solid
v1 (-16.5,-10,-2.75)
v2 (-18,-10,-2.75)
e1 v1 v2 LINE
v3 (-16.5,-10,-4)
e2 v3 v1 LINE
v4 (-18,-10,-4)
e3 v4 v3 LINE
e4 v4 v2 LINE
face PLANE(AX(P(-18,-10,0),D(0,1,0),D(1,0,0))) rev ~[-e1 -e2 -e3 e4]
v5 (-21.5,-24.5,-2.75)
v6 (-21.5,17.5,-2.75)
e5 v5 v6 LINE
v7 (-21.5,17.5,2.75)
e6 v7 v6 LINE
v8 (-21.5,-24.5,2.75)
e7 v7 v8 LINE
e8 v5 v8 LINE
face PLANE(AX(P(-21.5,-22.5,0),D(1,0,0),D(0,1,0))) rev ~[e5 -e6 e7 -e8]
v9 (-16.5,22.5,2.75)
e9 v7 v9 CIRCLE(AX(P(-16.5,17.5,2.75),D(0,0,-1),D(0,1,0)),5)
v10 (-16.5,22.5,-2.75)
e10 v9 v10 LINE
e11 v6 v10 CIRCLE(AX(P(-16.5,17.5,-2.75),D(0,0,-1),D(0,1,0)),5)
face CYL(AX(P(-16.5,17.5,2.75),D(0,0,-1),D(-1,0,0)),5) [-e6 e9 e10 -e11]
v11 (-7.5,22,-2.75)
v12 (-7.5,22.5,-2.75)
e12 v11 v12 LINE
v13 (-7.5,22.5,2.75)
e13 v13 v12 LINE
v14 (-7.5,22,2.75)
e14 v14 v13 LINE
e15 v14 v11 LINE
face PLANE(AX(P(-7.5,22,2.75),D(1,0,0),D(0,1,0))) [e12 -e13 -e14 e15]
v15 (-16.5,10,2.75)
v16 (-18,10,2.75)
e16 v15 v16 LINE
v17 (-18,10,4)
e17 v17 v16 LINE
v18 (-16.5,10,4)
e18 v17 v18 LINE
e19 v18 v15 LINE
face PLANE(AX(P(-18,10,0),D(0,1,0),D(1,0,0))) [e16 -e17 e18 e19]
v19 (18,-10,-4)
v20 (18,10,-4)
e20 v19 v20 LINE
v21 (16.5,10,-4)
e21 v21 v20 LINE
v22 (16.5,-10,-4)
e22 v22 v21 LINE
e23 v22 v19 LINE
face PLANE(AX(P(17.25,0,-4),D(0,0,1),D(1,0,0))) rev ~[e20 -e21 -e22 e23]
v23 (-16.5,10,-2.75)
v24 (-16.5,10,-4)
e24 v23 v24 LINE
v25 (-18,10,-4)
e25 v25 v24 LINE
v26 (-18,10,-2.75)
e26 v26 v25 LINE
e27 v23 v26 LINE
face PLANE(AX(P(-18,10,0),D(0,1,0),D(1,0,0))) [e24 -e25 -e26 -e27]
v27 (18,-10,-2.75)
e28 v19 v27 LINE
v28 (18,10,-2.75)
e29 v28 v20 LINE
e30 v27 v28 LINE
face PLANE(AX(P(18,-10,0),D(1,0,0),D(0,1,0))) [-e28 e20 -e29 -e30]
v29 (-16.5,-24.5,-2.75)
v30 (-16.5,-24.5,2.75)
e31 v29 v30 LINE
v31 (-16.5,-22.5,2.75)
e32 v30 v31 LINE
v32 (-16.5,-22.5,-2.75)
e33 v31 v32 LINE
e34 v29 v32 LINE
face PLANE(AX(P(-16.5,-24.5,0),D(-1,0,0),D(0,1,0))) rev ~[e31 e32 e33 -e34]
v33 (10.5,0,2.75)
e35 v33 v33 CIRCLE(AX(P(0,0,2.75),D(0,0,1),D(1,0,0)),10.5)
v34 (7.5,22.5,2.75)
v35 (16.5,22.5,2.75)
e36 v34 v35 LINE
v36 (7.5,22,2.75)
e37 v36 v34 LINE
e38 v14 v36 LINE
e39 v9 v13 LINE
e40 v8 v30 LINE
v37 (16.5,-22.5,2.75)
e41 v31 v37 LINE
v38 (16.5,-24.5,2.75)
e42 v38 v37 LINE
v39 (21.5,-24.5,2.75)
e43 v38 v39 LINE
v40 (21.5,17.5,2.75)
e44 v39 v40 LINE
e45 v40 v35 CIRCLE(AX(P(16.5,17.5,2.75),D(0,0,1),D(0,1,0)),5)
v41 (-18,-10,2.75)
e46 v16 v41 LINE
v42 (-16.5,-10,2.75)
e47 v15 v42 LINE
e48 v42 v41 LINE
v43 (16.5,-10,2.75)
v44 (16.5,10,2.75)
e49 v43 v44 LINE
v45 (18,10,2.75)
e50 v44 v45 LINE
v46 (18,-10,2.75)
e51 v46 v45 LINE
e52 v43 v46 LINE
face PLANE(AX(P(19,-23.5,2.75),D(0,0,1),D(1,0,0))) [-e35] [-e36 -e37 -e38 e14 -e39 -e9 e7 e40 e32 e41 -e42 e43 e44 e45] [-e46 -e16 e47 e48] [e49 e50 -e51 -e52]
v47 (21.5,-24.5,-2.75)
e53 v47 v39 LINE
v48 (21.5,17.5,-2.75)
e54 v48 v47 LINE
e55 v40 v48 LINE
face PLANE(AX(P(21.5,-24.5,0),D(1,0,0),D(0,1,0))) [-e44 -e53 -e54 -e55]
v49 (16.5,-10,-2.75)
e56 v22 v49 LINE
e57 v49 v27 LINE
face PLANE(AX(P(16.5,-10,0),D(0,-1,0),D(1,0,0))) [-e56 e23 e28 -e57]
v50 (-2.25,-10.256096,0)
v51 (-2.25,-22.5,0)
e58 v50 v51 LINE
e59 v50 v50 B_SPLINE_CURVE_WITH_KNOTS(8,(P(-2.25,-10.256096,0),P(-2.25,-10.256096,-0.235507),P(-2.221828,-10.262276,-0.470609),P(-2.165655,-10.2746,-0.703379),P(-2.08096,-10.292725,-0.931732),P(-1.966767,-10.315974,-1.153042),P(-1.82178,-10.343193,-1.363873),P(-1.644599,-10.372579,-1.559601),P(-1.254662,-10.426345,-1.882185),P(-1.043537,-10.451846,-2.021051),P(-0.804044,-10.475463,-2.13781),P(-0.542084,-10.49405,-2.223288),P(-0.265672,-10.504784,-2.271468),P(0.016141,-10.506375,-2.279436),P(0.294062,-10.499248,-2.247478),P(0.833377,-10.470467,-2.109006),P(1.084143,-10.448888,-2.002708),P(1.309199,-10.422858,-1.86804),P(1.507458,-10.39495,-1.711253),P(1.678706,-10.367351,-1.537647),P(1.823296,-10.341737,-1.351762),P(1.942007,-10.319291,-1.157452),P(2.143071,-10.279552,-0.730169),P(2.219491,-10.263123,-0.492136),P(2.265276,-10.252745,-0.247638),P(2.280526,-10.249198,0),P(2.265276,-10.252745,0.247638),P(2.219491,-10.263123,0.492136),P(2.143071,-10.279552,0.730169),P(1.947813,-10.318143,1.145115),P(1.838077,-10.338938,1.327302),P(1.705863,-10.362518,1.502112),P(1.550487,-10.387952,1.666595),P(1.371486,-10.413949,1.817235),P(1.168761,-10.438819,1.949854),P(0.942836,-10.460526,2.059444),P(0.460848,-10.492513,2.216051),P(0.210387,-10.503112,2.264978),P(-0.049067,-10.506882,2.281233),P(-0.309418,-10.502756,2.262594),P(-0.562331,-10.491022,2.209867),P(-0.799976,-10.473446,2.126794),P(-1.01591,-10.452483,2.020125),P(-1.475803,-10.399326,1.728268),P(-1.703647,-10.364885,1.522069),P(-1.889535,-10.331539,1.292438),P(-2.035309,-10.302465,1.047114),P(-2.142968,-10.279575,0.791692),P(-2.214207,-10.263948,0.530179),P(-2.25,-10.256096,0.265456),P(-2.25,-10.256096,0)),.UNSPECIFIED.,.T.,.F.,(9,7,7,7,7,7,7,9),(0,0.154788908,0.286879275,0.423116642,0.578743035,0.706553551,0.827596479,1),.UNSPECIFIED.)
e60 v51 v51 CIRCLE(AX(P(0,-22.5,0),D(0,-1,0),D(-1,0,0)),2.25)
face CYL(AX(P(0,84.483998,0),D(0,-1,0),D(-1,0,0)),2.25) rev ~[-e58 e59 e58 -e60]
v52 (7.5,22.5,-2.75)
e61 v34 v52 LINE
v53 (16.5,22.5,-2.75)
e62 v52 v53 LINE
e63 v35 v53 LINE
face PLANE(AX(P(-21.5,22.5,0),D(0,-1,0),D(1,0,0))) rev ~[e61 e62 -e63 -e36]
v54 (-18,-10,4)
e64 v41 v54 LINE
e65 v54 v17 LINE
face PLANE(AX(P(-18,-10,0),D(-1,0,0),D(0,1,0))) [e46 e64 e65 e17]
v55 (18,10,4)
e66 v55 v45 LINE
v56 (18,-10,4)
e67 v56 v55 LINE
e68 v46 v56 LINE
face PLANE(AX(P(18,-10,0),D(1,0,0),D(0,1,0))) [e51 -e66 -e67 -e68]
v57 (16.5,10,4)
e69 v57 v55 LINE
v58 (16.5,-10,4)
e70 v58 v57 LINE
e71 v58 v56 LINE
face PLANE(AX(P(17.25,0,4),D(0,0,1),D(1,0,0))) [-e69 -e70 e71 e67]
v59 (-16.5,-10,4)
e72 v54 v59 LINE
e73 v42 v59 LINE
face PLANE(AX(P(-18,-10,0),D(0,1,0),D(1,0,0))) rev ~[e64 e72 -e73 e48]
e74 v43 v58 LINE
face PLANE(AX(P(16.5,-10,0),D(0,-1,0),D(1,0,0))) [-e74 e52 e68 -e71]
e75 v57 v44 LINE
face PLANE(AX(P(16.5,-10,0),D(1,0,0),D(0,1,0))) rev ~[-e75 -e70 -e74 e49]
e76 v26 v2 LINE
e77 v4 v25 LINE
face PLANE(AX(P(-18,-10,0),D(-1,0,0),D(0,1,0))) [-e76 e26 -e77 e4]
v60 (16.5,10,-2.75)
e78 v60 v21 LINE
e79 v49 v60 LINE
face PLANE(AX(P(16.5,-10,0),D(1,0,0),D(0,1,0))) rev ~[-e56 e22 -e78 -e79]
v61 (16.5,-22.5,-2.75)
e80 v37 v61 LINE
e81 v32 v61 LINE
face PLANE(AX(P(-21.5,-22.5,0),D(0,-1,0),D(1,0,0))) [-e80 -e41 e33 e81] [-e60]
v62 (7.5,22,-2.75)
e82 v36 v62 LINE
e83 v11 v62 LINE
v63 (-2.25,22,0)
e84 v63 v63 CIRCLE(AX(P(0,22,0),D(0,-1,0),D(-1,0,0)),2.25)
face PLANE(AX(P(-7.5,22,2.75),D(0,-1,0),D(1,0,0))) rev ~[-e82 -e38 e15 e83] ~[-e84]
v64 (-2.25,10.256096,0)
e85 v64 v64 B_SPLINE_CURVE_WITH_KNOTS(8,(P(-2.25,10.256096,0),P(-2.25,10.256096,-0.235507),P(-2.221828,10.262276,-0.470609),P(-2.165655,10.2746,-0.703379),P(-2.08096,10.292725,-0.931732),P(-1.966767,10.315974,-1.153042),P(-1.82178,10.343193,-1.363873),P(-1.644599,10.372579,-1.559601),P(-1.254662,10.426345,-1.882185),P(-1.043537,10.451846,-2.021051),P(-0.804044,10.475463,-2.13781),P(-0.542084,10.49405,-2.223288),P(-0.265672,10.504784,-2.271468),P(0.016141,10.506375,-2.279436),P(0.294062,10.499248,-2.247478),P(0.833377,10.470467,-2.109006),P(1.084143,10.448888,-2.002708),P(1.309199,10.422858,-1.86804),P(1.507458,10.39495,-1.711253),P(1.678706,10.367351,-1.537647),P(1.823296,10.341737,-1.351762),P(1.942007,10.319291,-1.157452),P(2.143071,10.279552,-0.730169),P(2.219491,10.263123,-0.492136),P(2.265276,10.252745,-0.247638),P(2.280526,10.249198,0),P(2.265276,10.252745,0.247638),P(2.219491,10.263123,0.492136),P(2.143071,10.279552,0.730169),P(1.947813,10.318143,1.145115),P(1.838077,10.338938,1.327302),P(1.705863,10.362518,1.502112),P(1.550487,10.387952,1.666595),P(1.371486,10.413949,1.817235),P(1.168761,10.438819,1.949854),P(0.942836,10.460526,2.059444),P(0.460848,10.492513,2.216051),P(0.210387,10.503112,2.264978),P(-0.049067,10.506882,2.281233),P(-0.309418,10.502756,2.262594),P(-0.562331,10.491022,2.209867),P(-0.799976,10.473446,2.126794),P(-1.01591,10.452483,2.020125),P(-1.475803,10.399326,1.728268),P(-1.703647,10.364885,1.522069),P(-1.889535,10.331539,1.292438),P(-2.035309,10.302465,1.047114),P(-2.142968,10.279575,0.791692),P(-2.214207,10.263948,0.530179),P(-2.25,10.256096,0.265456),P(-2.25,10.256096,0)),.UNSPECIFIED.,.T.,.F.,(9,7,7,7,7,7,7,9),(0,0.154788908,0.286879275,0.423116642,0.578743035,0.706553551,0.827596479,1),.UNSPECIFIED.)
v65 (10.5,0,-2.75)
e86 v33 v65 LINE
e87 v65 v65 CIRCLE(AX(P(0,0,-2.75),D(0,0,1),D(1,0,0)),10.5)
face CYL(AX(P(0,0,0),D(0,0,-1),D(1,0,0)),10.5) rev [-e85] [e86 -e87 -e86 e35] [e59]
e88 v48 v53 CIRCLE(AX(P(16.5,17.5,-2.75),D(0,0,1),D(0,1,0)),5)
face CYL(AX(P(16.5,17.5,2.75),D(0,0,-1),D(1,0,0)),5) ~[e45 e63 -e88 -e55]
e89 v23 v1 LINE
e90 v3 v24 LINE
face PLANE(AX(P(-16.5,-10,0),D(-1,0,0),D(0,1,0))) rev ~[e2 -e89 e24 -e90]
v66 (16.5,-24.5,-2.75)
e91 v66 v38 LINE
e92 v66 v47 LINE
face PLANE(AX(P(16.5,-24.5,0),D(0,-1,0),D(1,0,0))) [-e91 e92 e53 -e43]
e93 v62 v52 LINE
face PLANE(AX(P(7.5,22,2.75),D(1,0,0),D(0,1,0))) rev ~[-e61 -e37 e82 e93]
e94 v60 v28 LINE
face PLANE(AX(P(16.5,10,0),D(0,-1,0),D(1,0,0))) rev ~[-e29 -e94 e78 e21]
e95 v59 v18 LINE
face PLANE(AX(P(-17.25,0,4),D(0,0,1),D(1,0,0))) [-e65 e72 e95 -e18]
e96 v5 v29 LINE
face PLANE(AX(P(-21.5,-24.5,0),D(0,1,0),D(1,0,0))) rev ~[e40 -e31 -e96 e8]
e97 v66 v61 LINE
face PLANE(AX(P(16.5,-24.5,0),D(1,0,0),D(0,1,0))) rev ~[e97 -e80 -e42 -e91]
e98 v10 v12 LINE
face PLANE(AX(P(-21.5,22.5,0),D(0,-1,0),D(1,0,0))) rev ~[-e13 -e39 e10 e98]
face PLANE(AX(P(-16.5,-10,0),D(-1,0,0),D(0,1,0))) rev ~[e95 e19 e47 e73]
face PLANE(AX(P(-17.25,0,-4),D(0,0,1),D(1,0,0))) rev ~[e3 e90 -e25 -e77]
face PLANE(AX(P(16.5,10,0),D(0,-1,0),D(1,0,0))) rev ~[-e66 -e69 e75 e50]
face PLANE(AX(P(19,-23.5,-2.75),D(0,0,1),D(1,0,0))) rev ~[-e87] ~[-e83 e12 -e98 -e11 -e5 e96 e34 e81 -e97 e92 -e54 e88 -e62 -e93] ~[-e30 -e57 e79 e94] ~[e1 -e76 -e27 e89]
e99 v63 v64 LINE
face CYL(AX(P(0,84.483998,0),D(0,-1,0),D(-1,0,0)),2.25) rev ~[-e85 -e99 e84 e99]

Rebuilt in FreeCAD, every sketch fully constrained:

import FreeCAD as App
import Part
import Sketcher

V = App.Vector
Q = App.Units.Quantity


def edges_at(feature, points):
    """Names of the edges that pass closest to the given points."""
    edges = feature.Shape.Edges
    near = lambda p: min(range(len(edges)), key=lambda i: edges[i].distToShape(Part.Vertex(*p))[0])
    return sorted({f"Edge{near(p) + 1}" for p in points})


def add_polygon(sketch, points):
    """Adds a closed chain of lines whose ends are joined by coincident constraints."""
    first, n = sketch.GeometryCount, len(points)
    for a, b in zip(points, points[1:] + points[:1]):
        sketch.addGeometry(Part.LineSegment(App.Vector(*a, 0), App.Vector(*b, 0)), False)
    for i in range(n):
        sketch.addConstraint(Sketcher.Constraint("Coincident", first + i, 2, first + (i + 1) % n, 1))

doc = App.newDocument("Part")
body = doc.addObject("PartDesign::Body", "Body")

# Sketch on XY plane
sketch1 = body.newObject("Sketcher::SketchObject", "Sketch")
sketch1.AttachmentSupport = (doc.getObject("XY_Plane"), [""])
sketch1.MapMode = "FlatFace"
add_polygon(sketch1, [(-22, 22), (-22, -22), (22, -22), (22, 22)])  # lines 0-3
sketch1.addGeometry(Part.Circle(V(0, 0, 0), V(0, 0, 1), 10), False)  # 4
sketch1.addConstraint([
    Sketcher.Constraint("Vertical", 0),
    Sketcher.Constraint("Horizontal", 1),
    Sketcher.Constraint("Vertical", 2),
    Sketcher.Constraint("Horizontal", 3),
    Sketcher.Constraint("Coincident", 4, 3, -1, 1),
    Sketcher.Constraint("Symmetric", 0, 2, 2, 2, -1, 1),
    Sketcher.Constraint("Diameter", 4, Q("21 mm")),
    Sketcher.Constraint("DistanceX", 1, 1, 1, 2, Q("43 mm")),
    Sketcher.Constraint("DistanceY", 0, 2, 0, 1, Q("45 mm")),
])
pad1 = body.newObject("PartDesign::Pad", "Pad")
pad1.Profile = sketch1
pad1.Length = 5.5
pad1.Midplane = True
doc.recompute()

fillet = body.newObject("PartDesign::Fillet", "Fillet")
fillet.Base = (pad1, edges_at(pad1, [(-21.5, 22.5, 0), (21.5, 22.5, 0)]))
fillet.Radius = 5

# Sketch on XY plane
sketch2 = body.newObject("Sketcher::SketchObject", "Sketch001")
sketch2.AttachmentSupport = (doc.getObject("XY_Plane"), [""])
sketch2.MapMode = "FlatFace"
sketch2.AttachmentOffset = App.Placement(V(0, 0, 2.75), App.Rotation())
add_polygon(sketch2, [(-7.5, 22.5), (-7.5, 22), (7.5, 22), (7.5, 22.5)])  # lines 0-3
sketch2.addConstraint([
    Sketcher.Constraint("Vertical", 0),
    Sketcher.Constraint("Horizontal", 1),
    Sketcher.Constraint("Vertical", 2),
    Sketcher.Constraint("Horizontal", 3),
    Sketcher.Constraint("DistanceX", 1, 1, 1, 2, Q("15 mm")),
    Sketcher.Constraint("DistanceY", 0, 2, 0, 1, Q("0.5 mm")),
    Sketcher.Constraint("DistanceY", -1, 1, 0, 2, Q("22 mm")),
    Sketcher.Constraint("DistanceX", 0, 2, -1, 1, Q("7.5 mm")),
])
pocket1 = body.newObject("PartDesign::Pocket", "Pocket")
pocket1.Profile = sketch2
pocket1.Length = 10

# Sketch on XZ plane
sketch3 = body.newObject("Sketcher::SketchObject", "Sketch002")
sketch3.AttachmentSupport = (doc.getObject("XZ_Plane"), [""])
sketch3.MapMode = "FlatFace"
sketch3.AttachmentOffset = App.Placement(V(0, 0, -22), App.Rotation())
sketch3.addGeometry(Part.Circle(V(0, 0, 0), V(0, 0, 1), 2.2), False)
sketch3.addConstraint([
    Sketcher.Constraint("Coincident", 0, 3, -1, 1),
    Sketcher.Constraint("Diameter", 0, Q("4.5 mm")),
])
doc.recompute()
hole = body.newObject("PartDesign::Hole", "Hole")
hole.Profile = sketch3
hole.ThreadType = "None"
hole.Diameter = 4.5
hole.DepthType = "ThroughAll"
hole.Reversed = True

# Sketch on XY plane
sketch4 = body.newObject("Sketcher::SketchObject", "Sketch003")
sketch4.AttachmentSupport = (doc.getObject("XY_Plane"), [""])
sketch4.MapMode = "FlatFace"
add_polygon(sketch4, [(-18, 10), (-18, -10), (-16.5, -10), (-16.5, 10)])  # lines 0-3
add_polygon(sketch4, [(16.5, 10), (16.5, -10), (18, -10), (18, 10)])  # lines 4-7
sketch4.addConstraint([
    Sketcher.Constraint("Vertical", 0),
    Sketcher.Constraint("Horizontal", 1),
    Sketcher.Constraint("Vertical", 2),
    Sketcher.Constraint("Horizontal", 3),
    Sketcher.Constraint("Vertical", 4),
    Sketcher.Constraint("Horizontal", 5),
    Sketcher.Constraint("Vertical", 6),
    Sketcher.Constraint("Horizontal", 7),
    Sketcher.Constraint("Symmetric", 2, 2, 4, 2, -1, 1),
    Sketcher.Constraint("Symmetric", 0, 2, 6, 2, -1, 1),
    Sketcher.Constraint("Horizontal", 1, 2, 4, 2),
    Sketcher.Constraint("DistanceY", 0, 2, 0, 1, Q("20 mm")),
    Sketcher.Constraint("DistanceX", 1, 1, 1, 2, Q("1.5 mm")),
    Sketcher.Constraint("DistanceX", 0, 2, -1, 1, Q("18 mm")),
])
pad2 = body.newObject("PartDesign::Pad", "Pad001")
pad2.Profile = sketch4
pad2.Length = 8
pad2.Midplane = True

# Sketch on XY plane
sketch5 = body.newObject("Sketcher::SketchObject", "Sketch004")
sketch5.AttachmentSupport = (doc.getObject("XY_Plane"), [""])
sketch5.MapMode = "FlatFace"
add_polygon(sketch5, [(-21.5, -22.5), (-21.5, -24.5), (-16.5, -24.5), (-16.5, -22.5)])  # lines 0-3
add_polygon(sketch5, [(16.5, -22.5), (16.5, -24.5), (21.5, -24.5), (21.5, -22.5)])  # lines 4-7
sketch5.addConstraint([
    Sketcher.Constraint("Vertical", 0),
    Sketcher.Constraint("Horizontal", 1),
    Sketcher.Constraint("Vertical", 2),
    Sketcher.Constraint("Horizontal", 3),
    Sketcher.Constraint("Vertical", 4),
    Sketcher.Constraint("Horizontal", 5),
    Sketcher.Constraint("Vertical", 6),
    Sketcher.Constraint("Horizontal", 7),
    Sketcher.Constraint("Symmetric", 1, 2, 4, 2, -2),
    Sketcher.Constraint("Symmetric", 3, 2, 6, 2, -2),
    Sketcher.Constraint("DistanceX", 1, 1, 1, 2, Q("5 mm")),
    Sketcher.Constraint("DistanceY", 0, 2, 0, 1, Q("2 mm")),
    Sketcher.Constraint("DistanceX", 1, 2, 4, 2, Q("33 mm")),
    Sketcher.Constraint("DistanceY", 0, 2, -1, 1, Q("24.5 mm")),
])
pad3 = body.newObject("PartDesign::Pad", "Pad002")
pad3.Profile = sketch5
pad3.Length = 5.5
pad3.Midplane = True

doc.recompute()
